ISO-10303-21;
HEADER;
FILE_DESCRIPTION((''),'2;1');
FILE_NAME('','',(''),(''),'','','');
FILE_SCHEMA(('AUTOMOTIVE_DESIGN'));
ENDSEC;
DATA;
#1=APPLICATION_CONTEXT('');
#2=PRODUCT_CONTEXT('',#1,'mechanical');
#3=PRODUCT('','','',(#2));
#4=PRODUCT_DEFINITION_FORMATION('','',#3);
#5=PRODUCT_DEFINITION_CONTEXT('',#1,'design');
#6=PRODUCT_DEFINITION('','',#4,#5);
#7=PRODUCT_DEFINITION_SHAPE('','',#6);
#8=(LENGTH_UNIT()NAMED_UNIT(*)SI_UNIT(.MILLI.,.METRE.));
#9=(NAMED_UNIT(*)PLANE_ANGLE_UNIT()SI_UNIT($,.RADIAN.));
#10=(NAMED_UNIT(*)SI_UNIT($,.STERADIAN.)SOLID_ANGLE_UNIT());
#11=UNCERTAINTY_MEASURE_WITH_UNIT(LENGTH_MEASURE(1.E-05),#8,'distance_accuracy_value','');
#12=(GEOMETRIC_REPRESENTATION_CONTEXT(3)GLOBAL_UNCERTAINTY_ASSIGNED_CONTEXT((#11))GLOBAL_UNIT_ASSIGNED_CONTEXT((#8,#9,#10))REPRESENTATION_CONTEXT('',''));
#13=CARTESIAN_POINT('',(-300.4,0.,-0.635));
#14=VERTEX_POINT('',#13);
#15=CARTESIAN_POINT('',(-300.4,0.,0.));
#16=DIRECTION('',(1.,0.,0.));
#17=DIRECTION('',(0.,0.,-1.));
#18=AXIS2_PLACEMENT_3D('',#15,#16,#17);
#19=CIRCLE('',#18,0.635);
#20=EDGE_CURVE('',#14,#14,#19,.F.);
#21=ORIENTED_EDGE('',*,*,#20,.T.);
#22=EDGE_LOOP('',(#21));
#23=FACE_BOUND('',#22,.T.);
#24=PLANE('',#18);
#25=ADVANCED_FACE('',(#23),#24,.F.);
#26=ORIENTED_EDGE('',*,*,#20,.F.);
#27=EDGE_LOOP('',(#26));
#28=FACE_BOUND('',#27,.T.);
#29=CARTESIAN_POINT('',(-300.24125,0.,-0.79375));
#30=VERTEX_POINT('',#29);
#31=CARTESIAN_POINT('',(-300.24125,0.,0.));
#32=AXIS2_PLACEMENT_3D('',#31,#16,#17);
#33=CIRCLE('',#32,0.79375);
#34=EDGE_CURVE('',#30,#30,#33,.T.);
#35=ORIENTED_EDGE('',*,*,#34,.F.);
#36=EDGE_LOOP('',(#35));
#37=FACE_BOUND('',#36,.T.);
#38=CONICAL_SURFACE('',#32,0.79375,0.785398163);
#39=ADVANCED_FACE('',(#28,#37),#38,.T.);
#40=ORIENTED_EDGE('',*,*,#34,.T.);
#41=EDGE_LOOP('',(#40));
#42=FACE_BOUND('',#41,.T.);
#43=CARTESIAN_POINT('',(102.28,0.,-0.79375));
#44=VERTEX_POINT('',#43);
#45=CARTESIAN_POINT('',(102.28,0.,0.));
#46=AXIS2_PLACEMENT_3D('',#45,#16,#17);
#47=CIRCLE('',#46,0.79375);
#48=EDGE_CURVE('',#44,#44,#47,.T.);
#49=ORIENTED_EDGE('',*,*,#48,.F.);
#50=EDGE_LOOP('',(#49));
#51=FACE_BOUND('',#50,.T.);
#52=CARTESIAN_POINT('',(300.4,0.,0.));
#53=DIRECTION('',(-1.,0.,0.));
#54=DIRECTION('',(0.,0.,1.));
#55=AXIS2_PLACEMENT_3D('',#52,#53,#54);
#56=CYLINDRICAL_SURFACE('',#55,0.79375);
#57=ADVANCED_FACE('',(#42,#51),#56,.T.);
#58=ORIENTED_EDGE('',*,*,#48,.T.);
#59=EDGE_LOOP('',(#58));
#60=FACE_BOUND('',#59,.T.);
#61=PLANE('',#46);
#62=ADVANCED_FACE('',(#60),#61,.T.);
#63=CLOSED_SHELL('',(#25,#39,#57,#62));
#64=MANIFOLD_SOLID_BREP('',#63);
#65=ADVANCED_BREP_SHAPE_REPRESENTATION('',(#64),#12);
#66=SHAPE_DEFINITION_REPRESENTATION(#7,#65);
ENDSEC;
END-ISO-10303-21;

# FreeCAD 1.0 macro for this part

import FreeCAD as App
import Part
import Sketcher
Q = App.Units.Quantity


def edges_at(feature, points):
    """Names of the edges that pass closest to the given points."""
    edges = feature.Shape.Edges
    near = lambda p: min(range(len(edges)), key=lambda i: edges[i].distToShape(Part.Vertex(*p))[0])
    return sorted({f"Edge{near(p) + 1}" for p in points})

doc = App.newDocument("Part")
body = doc.addObject("PartDesign::Body", "Body")

# Sketch on YZ plane
sketch1 = body.newObject("Sketcher::SketchObject", "Sketch")
sketch1.AttachmentSupport = (doc.getObject("YZ_Plane"), [""])
sketch1.MapMode = "FlatFace"
sketch1.addGeometry(Part.Circle(App.Vector(0, 0, 0), App.Vector(0, 0, 1), 0.79375), False)
sketch1.addConstraint(Sketcher.Constraint("Coincident", 0, 3, -1, 1))
sketch1.addConstraint(Sketcher.Constraint("Diameter", 0, Q("0.0625 in")))
pad1 = body.newObject("PartDesign::Pad", "Pad")
pad1.Profile = sketch1
pad1.Length = 600.8
pad1.Midplane = True
doc.recompute()

chamfer = body.newObject("PartDesign::Chamfer", "Chamfer")
chamfer.Base = (pad1, edges_at(pad1, [(-300.4, 0, 0.794), (300.4, 0, 0.794)]))
chamfer.Size = 0.15875

# Sketch on YZ plane
sketch2 = body.newObject("Sketcher::SketchObject", "Sketch001")
sketch2.AttachmentSupport = (doc.getObject("YZ_Plane"), [""])
sketch2.MapMode = "FlatFace"
sketch2.AttachmentOffset = App.Placement(App.Vector(0, 0, 300.4), App.Rotation())
sketch2.addGeometry(Part.Circle(App.Vector(0, 0, 0), App.Vector(0, 0, 1), 1.981721), False)
sketch2.addConstraint(Sketcher.Constraint("Coincident", 0, 3, -1, 1))
sketch2.addConstraint(Sketcher.Constraint("Diameter", 0, 3.963442))
pocket1 = body.newObject("PartDesign::Pocket", "Pocket")
pocket1.Profile = sketch2
pocket1.Length = Q("7.8 in")

doc.recompute()
